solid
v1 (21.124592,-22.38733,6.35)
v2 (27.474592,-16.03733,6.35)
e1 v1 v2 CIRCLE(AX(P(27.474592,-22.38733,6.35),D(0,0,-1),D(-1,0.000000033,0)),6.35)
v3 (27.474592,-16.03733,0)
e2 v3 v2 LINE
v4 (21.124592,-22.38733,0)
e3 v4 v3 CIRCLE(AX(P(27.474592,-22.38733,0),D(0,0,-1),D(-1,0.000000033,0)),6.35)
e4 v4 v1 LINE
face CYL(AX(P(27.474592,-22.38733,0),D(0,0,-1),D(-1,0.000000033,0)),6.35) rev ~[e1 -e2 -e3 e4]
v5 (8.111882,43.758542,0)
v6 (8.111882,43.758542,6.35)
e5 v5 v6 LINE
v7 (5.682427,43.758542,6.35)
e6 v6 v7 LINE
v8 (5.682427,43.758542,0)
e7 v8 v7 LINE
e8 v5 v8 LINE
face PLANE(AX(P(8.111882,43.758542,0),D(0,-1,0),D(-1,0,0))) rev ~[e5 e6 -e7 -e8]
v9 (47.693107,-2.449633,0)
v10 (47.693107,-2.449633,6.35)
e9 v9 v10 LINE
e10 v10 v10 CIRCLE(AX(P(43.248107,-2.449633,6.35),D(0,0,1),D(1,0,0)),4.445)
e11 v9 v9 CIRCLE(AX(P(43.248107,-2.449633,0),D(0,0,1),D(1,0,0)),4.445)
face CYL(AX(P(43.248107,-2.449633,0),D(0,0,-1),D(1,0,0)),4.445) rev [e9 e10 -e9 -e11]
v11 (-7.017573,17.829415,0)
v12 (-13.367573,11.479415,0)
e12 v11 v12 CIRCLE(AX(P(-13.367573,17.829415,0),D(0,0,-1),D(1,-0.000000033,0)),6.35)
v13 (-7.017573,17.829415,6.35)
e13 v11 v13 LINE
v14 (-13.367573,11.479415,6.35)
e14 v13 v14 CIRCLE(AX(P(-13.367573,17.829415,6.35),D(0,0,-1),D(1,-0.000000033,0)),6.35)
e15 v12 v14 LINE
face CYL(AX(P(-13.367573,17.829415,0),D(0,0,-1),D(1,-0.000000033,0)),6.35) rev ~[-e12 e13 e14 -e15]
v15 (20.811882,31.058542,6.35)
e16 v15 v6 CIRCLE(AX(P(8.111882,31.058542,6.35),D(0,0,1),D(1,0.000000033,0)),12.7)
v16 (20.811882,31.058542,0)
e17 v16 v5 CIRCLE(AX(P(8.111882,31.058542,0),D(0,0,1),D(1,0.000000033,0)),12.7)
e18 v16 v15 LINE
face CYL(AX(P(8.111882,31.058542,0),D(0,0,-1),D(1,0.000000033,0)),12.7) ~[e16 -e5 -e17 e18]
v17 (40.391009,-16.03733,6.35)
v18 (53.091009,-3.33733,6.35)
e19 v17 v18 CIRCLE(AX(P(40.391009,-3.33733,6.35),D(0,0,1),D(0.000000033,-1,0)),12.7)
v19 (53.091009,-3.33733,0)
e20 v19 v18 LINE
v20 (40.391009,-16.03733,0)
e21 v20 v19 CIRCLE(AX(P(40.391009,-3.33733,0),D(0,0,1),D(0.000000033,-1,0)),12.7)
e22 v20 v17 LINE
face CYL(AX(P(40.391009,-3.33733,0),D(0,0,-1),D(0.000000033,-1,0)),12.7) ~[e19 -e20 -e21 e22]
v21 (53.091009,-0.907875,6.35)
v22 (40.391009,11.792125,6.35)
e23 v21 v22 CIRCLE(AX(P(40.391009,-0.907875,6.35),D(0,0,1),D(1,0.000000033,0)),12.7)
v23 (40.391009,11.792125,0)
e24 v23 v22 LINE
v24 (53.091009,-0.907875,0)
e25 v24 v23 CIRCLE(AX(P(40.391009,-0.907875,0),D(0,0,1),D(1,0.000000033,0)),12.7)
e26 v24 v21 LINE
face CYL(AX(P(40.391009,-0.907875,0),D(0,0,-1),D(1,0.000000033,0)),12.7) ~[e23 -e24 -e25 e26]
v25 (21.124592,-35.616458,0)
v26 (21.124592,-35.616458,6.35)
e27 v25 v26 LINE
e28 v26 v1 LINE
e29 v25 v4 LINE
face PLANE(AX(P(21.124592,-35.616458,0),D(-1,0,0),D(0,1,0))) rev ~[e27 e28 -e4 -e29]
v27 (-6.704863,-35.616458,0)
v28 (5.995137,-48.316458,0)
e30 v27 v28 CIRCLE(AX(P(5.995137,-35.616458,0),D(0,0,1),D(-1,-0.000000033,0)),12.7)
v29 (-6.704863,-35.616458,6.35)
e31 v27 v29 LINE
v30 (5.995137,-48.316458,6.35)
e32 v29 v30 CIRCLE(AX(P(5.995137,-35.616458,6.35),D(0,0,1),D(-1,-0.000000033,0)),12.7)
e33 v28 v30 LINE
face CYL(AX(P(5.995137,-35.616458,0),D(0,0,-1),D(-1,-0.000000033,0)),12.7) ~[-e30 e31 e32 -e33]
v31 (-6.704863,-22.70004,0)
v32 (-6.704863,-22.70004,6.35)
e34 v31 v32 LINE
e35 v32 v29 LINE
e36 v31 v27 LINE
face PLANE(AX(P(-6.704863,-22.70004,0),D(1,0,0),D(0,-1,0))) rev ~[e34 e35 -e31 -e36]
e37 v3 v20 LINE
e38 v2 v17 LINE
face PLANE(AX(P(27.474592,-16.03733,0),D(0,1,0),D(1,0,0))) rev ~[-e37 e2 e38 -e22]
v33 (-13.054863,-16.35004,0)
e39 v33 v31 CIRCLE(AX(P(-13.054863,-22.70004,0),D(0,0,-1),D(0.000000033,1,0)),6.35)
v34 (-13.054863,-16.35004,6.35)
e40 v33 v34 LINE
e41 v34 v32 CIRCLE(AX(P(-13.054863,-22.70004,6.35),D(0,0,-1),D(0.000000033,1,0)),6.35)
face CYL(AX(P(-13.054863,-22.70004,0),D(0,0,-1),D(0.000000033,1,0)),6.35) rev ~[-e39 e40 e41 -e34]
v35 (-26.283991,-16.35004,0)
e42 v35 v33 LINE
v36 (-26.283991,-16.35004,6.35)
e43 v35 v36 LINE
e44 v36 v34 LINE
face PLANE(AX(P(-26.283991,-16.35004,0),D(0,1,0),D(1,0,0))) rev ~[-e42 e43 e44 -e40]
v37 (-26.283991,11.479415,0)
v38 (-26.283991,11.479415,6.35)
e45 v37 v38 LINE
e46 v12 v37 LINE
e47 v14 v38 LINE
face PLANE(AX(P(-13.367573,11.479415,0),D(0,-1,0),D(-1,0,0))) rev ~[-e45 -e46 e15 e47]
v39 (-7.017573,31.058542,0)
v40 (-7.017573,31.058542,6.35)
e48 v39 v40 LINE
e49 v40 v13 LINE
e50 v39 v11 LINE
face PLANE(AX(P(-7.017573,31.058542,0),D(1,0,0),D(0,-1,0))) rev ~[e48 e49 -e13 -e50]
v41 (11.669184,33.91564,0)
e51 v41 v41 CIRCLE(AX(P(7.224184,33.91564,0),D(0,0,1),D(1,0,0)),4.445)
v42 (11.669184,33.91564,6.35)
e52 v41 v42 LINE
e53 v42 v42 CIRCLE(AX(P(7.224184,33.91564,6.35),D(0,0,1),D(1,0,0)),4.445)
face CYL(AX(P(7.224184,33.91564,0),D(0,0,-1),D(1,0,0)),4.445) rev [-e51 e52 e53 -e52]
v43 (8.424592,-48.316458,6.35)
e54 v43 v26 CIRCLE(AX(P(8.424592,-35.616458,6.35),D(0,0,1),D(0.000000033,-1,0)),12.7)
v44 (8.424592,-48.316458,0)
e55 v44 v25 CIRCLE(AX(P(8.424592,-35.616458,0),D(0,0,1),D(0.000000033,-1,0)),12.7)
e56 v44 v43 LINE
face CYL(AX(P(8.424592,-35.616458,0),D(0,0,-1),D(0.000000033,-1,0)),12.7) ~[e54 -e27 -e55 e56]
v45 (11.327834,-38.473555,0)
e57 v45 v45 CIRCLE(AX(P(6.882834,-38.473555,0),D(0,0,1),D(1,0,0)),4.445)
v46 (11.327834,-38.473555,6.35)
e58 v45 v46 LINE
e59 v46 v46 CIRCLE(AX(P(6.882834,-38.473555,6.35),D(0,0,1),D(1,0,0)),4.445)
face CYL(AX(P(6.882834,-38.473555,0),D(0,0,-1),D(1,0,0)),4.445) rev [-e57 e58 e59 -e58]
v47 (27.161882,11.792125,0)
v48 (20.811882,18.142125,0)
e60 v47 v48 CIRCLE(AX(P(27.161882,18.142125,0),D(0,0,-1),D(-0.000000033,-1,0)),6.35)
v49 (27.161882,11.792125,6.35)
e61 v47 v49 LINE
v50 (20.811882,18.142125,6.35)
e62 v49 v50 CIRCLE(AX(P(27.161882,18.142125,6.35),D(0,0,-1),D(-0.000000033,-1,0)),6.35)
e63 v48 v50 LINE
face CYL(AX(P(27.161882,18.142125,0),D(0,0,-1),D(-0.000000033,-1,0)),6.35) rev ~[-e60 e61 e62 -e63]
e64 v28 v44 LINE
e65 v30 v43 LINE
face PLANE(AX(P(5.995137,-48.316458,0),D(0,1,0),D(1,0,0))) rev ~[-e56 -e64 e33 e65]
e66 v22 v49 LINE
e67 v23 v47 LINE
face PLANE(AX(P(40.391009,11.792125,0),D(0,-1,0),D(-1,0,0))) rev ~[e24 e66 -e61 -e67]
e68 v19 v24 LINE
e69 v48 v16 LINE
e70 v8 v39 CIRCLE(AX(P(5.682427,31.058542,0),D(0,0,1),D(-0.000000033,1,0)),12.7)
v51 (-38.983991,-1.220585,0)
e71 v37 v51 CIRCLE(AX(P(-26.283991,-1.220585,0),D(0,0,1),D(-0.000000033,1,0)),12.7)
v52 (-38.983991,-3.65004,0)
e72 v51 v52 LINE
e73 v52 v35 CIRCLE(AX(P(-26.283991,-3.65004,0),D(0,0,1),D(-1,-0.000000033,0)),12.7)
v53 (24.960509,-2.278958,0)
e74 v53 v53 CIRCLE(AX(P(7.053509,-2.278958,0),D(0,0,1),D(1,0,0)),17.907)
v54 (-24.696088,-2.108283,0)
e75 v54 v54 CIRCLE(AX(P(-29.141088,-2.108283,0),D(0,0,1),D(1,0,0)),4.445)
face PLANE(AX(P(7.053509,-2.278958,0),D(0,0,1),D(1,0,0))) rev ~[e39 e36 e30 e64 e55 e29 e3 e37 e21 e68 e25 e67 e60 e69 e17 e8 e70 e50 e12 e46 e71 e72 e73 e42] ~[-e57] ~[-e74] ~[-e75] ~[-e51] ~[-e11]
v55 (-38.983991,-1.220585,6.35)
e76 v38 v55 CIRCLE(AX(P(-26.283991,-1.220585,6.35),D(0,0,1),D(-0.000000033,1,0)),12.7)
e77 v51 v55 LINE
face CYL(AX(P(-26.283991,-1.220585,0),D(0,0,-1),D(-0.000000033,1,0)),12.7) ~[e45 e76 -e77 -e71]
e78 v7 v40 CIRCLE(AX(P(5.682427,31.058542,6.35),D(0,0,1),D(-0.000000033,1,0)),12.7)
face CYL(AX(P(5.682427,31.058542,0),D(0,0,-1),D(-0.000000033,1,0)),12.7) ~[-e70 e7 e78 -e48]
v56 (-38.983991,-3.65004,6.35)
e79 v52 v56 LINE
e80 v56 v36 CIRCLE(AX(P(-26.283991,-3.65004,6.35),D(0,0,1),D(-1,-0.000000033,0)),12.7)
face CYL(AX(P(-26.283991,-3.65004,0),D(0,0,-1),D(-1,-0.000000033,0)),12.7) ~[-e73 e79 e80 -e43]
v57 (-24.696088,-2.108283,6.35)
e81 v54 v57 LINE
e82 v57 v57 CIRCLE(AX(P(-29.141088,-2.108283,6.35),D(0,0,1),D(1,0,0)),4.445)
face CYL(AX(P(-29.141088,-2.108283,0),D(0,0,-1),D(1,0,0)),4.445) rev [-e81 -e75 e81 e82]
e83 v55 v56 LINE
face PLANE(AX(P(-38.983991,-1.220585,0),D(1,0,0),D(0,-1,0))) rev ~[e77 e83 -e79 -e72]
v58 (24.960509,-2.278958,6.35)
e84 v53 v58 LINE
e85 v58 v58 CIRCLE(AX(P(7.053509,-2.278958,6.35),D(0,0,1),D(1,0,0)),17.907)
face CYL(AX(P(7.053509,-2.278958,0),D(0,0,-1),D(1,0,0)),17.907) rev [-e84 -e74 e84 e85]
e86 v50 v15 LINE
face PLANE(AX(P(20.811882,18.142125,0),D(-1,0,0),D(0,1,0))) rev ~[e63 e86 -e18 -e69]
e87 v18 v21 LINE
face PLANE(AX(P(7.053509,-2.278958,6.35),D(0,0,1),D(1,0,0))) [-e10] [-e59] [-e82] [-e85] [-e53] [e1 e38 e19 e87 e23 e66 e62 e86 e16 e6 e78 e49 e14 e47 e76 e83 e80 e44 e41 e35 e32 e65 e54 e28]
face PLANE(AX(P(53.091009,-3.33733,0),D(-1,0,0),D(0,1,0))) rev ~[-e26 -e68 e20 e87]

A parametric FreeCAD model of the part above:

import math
import FreeCAD as App
import Part
import Sketcher

V = App.Vector
Q = App.Units.Quantity

doc = App.newDocument("Part")
body = doc.addObject("PartDesign::Body", "Body")

# Sketch on XY plane
sketch1 = body.newObject("Sketcher::SketchObject", "Sketch")
sketch1.AttachmentSupport = (doc.getObject("XY_Plane"), [""])
sketch1.MapMode = "FlatFace"
sketch1.addGeometry([
    Part.LineSegment(V(40.4, 11.8, 0), V(27.2, 11.8, 0)),  # 0
    Part.ArcOfCircle(Part.Circle(V(27.2, 18.1, 0), V(0, 0, 1), 6.4), math.radians(-180), math.radians(-90)),  # 1
    Part.LineSegment(V(20.8, 18.1, 0), V(20.8, 31.1, 0)),  # 2
    Part.ArcOfCircle(Part.Circle(V(8.1, 31.1, 0), V(0, 0, 1), 12.7), math.radians(0), math.radians(90)),  # 3
    Part.LineSegment(V(8.1, 43.8, 0), V(5.7, 43.8, 0)),  # 4
    Part.ArcOfCircle(Part.Circle(V(5.7, 31.1, 0), V(0, 0, 1), 12.7), math.radians(90), math.radians(180)),  # 5
    Part.LineSegment(V(-7, 31.1, 0), V(-7, 17.8, 0)),  # 6
    Part.ArcOfCircle(Part.Circle(V(-13.4, 17.8, 0), V(0, 0, 1), 6.4), math.radians(-90), math.radians(0)),  # 7
    Part.LineSegment(V(-13.4, 11.5, 0), V(-26.3, 11.5, 0)),  # 8
    Part.ArcOfCircle(Part.Circle(V(-26.3, -1.2, 0), V(0, 0, 1), 12.7), math.radians(90), math.radians(180)),  # 9
    Part.LineSegment(V(-39, -1.2, 0), V(-39, -3.7, 0)),  # 10
    Part.ArcOfCircle(Part.Circle(V(-26.3, -3.7, 0), V(0, 0, 1), 12.7), math.radians(-180), math.radians(-90)),  # 11
    Part.LineSegment(V(-26.3, -16.4, 0), V(-13.1, -16.4, 0)),  # 12
    Part.ArcOfCircle(Part.Circle(V(-13.1, -22.7, 0), V(0, 0, 1), 6.4), math.radians(0), math.radians(90)),  # 13
    Part.LineSegment(V(-6.7, -22.7, 0), V(-6.7, -35.6, 0)),  # 14
    Part.ArcOfCircle(Part.Circle(V(6, -35.6, 0), V(0, 0, 1), 12.7), math.radians(-180), math.radians(-90)),  # 15
    Part.LineSegment(V(6, -48.3, 0), V(8.4, -48.3, 0)),  # 16
    Part.ArcOfCircle(Part.Circle(V(8.4, -35.6, 0), V(0, 0, 1), 12.7), math.radians(-90), math.radians(0)),  # 17
    Part.LineSegment(V(21.1, -35.6, 0), V(21.1, -22.4, 0)),  # 18
    Part.ArcOfCircle(Part.Circle(V(27.5, -22.4, 0), V(0, 0, 1), 6.4), math.radians(90), math.radians(180)),  # 19
    Part.LineSegment(V(27.5, -16, 0), V(40.4, -16, 0)),  # 20
    Part.ArcOfCircle(Part.Circle(V(40.4, -3.3, 0), V(0, 0, 1), 12.7), math.radians(-90), math.radians(0)),  # 21
    Part.LineSegment(V(53.1, -3.3, 0), V(53.1, -0.9, 0)),  # 22
    Part.ArcOfCircle(Part.Circle(V(40.4, -0.9, 0), V(0, 0, 1), 12.7), math.radians(0), math.radians(90)),  # 23
    Part.Circle(V(6.9, -38.5, 0), V(0, 0, 1), 4.4),  # 24
    Part.Circle(V(7.1, -2.3, 0), V(0, 0, 1), 17.9),  # 25
    Part.Circle(V(43.2, -2.4, 0), V(0, 0, 1), 4.4),  # 26
    Part.Circle(V(-29.1, -2.1, 0), V(0, 0, 1), 4.4),  # 27
    Part.Circle(V(7.2, 33.9, 0), V(0, 0, 1), 4.4),  # 28
], False)
sketch1.addConstraint([
    Sketcher.Constraint("Tangent", 0, 2, 1, 2),
    Sketcher.Constraint("Tangent", 1, 1, 2, 1),
    Sketcher.Constraint("Tangent", 2, 2, 3, 1),
    Sketcher.Constraint("Tangent", 3, 2, 4, 1),
    Sketcher.Constraint("Tangent", 4, 2, 5, 1),
    Sketcher.Constraint("Tangent", 5, 2, 6, 1),
    Sketcher.Constraint("Tangent", 6, 2, 7, 2),
    Sketcher.Constraint("Tangent", 7, 1, 8, 1),
    Sketcher.Constraint("Tangent", 8, 2, 9, 1),
    Sketcher.Constraint("Tangent", 9, 2, 10, 1),
    Sketcher.Constraint("Tangent", 10, 2, 11, 1),
    Sketcher.Constraint("Tangent", 11, 2, 12, 1),
    Sketcher.Constraint("Tangent", 12, 2, 13, 2),
    Sketcher.Constraint("Tangent", 13, 1, 14, 1),
    Sketcher.Constraint("Tangent", 14, 2, 15, 1),
    Sketcher.Constraint("Tangent", 15, 2, 16, 1),
    Sketcher.Constraint("Tangent", 16, 2, 17, 1),
    Sketcher.Constraint("Tangent", 17, 2, 18, 1),
    Sketcher.Constraint("Tangent", 18, 2, 19, 2),
    Sketcher.Constraint("Tangent", 19, 1, 20, 1),
    Sketcher.Constraint("Tangent", 20, 2, 21, 1),
    Sketcher.Constraint("Tangent", 21, 2, 22, 1),
    Sketcher.Constraint("Tangent", 22, 2, 23, 1),
    Sketcher.Constraint("Tangent", 23, 2, 0, 1),
    Sketcher.Constraint("Horizontal", 0),
    Sketcher.Constraint("Vertical", 2),
    Sketcher.Constraint("Horizontal", 4),
    Sketcher.Constraint("Vertical", 6),
    Sketcher.Constraint("Horizontal", 8),
    Sketcher.Constraint("Vertical", 10),
    Sketcher.Constraint("Horizontal", 12),
    Sketcher.Constraint("Vertical", 14),
    Sketcher.Constraint("Horizontal", 16),
    Sketcher.Constraint("Vertical", 18),
    Sketcher.Constraint("Horizontal", 20),
    Sketcher.Constraint("Vertical", 22),
    Sketcher.Constraint("Equal", 3, 5),
    Sketcher.Constraint("Equal", 1, 7),
    Sketcher.Constraint("Equal", 5, 9),
    Sketcher.Constraint("Equal", 9, 11),
    Sketcher.Constraint("Equal", 7, 13),
    Sketcher.Constraint("Equal", 11, 15),
    Sketcher.Constraint("Equal", 15, 17),
    Sketcher.Constraint("Equal", 13, 19),
    Sketcher.Constraint("Equal", 17, 21),
    Sketcher.Constraint("Equal", 21, 23),
    Sketcher.Constraint("Equal", 24, 26),
    Sketcher.Constraint("Equal", 26, 27),
    Sketcher.Constraint("Equal", 27, 28),
    Sketcher.Constraint("Equal", 0, 12),
    Sketcher.Constraint("Equal", 4, 16),
    Sketcher.Constraint("Equal", 20, 2),
    Sketcher.Constraint("Equal", 12, 6),
    Sketcher.Constraint("Equal", 16, 10),
    Sketcher.Constraint("Equal", 2, 14),
    Sketcher.Constraint("Equal", 6, 18),
    Sketcher.Constraint("Radius", 3, Q("0.5 in")),
    Sketcher.Constraint("Diameter", 24, Q("0.35 in")),
    Sketcher.Constraint("Diameter", 25, Q("1.41 in")),
    Sketcher.Constraint("Radius", 1, Q("0.25 in")),
    Sketcher.Constraint("DistanceY", 15, 3, 25, 3, Q("1.3125 in")),
    Sketcher.Constraint("DistanceX", 12, 1, 12, 2, 13.229128),
    Sketcher.Constraint("DistanceX", 21, 3, 26, 3, 2.857098),
    Sketcher.Constraint("DistanceY", 27, 3, 7, 3, 19.937698),
    Sketcher.Constraint("DistanceY", 3, 3, 28, 3, 2.857098),
    Sketcher.Constraint("DistanceX", 28, 3, 1, 3, 19.937698),
    Sketcher.Constraint("DistanceY", 25, 3, 28, 3, 36.194598),
    Sketcher.Constraint("DistanceX", 4, 2, 4, 1, 2.429455),
    Sketcher.Constraint("DistanceX", -1, 1, 3, 3, 8.111882),
    Sketcher.Constraint("DistanceY", -1, 1, 3, 3, 31.058542),
    Sketcher.Constraint("DistanceX", -1, 1, 25, 3, 7.053509),
    Sketcher.Constraint("DistanceX", 27, 3, -1, 1, 29.141088),
    Sketcher.Constraint("DistanceX", 24, 3, 19, 3, 20.591758),
    Sketcher.Constraint("DistanceY", 26, 3, 1, 3, 20.591758),
    Sketcher.Constraint("DistanceY", 24, 3, -1, 1, 38.473555),
])
pad1 = body.newObject("PartDesign::Pad", "Pad")
pad1.Profile = sketch1
pad1.Length = Q("0.25 in")

doc.recompute()
